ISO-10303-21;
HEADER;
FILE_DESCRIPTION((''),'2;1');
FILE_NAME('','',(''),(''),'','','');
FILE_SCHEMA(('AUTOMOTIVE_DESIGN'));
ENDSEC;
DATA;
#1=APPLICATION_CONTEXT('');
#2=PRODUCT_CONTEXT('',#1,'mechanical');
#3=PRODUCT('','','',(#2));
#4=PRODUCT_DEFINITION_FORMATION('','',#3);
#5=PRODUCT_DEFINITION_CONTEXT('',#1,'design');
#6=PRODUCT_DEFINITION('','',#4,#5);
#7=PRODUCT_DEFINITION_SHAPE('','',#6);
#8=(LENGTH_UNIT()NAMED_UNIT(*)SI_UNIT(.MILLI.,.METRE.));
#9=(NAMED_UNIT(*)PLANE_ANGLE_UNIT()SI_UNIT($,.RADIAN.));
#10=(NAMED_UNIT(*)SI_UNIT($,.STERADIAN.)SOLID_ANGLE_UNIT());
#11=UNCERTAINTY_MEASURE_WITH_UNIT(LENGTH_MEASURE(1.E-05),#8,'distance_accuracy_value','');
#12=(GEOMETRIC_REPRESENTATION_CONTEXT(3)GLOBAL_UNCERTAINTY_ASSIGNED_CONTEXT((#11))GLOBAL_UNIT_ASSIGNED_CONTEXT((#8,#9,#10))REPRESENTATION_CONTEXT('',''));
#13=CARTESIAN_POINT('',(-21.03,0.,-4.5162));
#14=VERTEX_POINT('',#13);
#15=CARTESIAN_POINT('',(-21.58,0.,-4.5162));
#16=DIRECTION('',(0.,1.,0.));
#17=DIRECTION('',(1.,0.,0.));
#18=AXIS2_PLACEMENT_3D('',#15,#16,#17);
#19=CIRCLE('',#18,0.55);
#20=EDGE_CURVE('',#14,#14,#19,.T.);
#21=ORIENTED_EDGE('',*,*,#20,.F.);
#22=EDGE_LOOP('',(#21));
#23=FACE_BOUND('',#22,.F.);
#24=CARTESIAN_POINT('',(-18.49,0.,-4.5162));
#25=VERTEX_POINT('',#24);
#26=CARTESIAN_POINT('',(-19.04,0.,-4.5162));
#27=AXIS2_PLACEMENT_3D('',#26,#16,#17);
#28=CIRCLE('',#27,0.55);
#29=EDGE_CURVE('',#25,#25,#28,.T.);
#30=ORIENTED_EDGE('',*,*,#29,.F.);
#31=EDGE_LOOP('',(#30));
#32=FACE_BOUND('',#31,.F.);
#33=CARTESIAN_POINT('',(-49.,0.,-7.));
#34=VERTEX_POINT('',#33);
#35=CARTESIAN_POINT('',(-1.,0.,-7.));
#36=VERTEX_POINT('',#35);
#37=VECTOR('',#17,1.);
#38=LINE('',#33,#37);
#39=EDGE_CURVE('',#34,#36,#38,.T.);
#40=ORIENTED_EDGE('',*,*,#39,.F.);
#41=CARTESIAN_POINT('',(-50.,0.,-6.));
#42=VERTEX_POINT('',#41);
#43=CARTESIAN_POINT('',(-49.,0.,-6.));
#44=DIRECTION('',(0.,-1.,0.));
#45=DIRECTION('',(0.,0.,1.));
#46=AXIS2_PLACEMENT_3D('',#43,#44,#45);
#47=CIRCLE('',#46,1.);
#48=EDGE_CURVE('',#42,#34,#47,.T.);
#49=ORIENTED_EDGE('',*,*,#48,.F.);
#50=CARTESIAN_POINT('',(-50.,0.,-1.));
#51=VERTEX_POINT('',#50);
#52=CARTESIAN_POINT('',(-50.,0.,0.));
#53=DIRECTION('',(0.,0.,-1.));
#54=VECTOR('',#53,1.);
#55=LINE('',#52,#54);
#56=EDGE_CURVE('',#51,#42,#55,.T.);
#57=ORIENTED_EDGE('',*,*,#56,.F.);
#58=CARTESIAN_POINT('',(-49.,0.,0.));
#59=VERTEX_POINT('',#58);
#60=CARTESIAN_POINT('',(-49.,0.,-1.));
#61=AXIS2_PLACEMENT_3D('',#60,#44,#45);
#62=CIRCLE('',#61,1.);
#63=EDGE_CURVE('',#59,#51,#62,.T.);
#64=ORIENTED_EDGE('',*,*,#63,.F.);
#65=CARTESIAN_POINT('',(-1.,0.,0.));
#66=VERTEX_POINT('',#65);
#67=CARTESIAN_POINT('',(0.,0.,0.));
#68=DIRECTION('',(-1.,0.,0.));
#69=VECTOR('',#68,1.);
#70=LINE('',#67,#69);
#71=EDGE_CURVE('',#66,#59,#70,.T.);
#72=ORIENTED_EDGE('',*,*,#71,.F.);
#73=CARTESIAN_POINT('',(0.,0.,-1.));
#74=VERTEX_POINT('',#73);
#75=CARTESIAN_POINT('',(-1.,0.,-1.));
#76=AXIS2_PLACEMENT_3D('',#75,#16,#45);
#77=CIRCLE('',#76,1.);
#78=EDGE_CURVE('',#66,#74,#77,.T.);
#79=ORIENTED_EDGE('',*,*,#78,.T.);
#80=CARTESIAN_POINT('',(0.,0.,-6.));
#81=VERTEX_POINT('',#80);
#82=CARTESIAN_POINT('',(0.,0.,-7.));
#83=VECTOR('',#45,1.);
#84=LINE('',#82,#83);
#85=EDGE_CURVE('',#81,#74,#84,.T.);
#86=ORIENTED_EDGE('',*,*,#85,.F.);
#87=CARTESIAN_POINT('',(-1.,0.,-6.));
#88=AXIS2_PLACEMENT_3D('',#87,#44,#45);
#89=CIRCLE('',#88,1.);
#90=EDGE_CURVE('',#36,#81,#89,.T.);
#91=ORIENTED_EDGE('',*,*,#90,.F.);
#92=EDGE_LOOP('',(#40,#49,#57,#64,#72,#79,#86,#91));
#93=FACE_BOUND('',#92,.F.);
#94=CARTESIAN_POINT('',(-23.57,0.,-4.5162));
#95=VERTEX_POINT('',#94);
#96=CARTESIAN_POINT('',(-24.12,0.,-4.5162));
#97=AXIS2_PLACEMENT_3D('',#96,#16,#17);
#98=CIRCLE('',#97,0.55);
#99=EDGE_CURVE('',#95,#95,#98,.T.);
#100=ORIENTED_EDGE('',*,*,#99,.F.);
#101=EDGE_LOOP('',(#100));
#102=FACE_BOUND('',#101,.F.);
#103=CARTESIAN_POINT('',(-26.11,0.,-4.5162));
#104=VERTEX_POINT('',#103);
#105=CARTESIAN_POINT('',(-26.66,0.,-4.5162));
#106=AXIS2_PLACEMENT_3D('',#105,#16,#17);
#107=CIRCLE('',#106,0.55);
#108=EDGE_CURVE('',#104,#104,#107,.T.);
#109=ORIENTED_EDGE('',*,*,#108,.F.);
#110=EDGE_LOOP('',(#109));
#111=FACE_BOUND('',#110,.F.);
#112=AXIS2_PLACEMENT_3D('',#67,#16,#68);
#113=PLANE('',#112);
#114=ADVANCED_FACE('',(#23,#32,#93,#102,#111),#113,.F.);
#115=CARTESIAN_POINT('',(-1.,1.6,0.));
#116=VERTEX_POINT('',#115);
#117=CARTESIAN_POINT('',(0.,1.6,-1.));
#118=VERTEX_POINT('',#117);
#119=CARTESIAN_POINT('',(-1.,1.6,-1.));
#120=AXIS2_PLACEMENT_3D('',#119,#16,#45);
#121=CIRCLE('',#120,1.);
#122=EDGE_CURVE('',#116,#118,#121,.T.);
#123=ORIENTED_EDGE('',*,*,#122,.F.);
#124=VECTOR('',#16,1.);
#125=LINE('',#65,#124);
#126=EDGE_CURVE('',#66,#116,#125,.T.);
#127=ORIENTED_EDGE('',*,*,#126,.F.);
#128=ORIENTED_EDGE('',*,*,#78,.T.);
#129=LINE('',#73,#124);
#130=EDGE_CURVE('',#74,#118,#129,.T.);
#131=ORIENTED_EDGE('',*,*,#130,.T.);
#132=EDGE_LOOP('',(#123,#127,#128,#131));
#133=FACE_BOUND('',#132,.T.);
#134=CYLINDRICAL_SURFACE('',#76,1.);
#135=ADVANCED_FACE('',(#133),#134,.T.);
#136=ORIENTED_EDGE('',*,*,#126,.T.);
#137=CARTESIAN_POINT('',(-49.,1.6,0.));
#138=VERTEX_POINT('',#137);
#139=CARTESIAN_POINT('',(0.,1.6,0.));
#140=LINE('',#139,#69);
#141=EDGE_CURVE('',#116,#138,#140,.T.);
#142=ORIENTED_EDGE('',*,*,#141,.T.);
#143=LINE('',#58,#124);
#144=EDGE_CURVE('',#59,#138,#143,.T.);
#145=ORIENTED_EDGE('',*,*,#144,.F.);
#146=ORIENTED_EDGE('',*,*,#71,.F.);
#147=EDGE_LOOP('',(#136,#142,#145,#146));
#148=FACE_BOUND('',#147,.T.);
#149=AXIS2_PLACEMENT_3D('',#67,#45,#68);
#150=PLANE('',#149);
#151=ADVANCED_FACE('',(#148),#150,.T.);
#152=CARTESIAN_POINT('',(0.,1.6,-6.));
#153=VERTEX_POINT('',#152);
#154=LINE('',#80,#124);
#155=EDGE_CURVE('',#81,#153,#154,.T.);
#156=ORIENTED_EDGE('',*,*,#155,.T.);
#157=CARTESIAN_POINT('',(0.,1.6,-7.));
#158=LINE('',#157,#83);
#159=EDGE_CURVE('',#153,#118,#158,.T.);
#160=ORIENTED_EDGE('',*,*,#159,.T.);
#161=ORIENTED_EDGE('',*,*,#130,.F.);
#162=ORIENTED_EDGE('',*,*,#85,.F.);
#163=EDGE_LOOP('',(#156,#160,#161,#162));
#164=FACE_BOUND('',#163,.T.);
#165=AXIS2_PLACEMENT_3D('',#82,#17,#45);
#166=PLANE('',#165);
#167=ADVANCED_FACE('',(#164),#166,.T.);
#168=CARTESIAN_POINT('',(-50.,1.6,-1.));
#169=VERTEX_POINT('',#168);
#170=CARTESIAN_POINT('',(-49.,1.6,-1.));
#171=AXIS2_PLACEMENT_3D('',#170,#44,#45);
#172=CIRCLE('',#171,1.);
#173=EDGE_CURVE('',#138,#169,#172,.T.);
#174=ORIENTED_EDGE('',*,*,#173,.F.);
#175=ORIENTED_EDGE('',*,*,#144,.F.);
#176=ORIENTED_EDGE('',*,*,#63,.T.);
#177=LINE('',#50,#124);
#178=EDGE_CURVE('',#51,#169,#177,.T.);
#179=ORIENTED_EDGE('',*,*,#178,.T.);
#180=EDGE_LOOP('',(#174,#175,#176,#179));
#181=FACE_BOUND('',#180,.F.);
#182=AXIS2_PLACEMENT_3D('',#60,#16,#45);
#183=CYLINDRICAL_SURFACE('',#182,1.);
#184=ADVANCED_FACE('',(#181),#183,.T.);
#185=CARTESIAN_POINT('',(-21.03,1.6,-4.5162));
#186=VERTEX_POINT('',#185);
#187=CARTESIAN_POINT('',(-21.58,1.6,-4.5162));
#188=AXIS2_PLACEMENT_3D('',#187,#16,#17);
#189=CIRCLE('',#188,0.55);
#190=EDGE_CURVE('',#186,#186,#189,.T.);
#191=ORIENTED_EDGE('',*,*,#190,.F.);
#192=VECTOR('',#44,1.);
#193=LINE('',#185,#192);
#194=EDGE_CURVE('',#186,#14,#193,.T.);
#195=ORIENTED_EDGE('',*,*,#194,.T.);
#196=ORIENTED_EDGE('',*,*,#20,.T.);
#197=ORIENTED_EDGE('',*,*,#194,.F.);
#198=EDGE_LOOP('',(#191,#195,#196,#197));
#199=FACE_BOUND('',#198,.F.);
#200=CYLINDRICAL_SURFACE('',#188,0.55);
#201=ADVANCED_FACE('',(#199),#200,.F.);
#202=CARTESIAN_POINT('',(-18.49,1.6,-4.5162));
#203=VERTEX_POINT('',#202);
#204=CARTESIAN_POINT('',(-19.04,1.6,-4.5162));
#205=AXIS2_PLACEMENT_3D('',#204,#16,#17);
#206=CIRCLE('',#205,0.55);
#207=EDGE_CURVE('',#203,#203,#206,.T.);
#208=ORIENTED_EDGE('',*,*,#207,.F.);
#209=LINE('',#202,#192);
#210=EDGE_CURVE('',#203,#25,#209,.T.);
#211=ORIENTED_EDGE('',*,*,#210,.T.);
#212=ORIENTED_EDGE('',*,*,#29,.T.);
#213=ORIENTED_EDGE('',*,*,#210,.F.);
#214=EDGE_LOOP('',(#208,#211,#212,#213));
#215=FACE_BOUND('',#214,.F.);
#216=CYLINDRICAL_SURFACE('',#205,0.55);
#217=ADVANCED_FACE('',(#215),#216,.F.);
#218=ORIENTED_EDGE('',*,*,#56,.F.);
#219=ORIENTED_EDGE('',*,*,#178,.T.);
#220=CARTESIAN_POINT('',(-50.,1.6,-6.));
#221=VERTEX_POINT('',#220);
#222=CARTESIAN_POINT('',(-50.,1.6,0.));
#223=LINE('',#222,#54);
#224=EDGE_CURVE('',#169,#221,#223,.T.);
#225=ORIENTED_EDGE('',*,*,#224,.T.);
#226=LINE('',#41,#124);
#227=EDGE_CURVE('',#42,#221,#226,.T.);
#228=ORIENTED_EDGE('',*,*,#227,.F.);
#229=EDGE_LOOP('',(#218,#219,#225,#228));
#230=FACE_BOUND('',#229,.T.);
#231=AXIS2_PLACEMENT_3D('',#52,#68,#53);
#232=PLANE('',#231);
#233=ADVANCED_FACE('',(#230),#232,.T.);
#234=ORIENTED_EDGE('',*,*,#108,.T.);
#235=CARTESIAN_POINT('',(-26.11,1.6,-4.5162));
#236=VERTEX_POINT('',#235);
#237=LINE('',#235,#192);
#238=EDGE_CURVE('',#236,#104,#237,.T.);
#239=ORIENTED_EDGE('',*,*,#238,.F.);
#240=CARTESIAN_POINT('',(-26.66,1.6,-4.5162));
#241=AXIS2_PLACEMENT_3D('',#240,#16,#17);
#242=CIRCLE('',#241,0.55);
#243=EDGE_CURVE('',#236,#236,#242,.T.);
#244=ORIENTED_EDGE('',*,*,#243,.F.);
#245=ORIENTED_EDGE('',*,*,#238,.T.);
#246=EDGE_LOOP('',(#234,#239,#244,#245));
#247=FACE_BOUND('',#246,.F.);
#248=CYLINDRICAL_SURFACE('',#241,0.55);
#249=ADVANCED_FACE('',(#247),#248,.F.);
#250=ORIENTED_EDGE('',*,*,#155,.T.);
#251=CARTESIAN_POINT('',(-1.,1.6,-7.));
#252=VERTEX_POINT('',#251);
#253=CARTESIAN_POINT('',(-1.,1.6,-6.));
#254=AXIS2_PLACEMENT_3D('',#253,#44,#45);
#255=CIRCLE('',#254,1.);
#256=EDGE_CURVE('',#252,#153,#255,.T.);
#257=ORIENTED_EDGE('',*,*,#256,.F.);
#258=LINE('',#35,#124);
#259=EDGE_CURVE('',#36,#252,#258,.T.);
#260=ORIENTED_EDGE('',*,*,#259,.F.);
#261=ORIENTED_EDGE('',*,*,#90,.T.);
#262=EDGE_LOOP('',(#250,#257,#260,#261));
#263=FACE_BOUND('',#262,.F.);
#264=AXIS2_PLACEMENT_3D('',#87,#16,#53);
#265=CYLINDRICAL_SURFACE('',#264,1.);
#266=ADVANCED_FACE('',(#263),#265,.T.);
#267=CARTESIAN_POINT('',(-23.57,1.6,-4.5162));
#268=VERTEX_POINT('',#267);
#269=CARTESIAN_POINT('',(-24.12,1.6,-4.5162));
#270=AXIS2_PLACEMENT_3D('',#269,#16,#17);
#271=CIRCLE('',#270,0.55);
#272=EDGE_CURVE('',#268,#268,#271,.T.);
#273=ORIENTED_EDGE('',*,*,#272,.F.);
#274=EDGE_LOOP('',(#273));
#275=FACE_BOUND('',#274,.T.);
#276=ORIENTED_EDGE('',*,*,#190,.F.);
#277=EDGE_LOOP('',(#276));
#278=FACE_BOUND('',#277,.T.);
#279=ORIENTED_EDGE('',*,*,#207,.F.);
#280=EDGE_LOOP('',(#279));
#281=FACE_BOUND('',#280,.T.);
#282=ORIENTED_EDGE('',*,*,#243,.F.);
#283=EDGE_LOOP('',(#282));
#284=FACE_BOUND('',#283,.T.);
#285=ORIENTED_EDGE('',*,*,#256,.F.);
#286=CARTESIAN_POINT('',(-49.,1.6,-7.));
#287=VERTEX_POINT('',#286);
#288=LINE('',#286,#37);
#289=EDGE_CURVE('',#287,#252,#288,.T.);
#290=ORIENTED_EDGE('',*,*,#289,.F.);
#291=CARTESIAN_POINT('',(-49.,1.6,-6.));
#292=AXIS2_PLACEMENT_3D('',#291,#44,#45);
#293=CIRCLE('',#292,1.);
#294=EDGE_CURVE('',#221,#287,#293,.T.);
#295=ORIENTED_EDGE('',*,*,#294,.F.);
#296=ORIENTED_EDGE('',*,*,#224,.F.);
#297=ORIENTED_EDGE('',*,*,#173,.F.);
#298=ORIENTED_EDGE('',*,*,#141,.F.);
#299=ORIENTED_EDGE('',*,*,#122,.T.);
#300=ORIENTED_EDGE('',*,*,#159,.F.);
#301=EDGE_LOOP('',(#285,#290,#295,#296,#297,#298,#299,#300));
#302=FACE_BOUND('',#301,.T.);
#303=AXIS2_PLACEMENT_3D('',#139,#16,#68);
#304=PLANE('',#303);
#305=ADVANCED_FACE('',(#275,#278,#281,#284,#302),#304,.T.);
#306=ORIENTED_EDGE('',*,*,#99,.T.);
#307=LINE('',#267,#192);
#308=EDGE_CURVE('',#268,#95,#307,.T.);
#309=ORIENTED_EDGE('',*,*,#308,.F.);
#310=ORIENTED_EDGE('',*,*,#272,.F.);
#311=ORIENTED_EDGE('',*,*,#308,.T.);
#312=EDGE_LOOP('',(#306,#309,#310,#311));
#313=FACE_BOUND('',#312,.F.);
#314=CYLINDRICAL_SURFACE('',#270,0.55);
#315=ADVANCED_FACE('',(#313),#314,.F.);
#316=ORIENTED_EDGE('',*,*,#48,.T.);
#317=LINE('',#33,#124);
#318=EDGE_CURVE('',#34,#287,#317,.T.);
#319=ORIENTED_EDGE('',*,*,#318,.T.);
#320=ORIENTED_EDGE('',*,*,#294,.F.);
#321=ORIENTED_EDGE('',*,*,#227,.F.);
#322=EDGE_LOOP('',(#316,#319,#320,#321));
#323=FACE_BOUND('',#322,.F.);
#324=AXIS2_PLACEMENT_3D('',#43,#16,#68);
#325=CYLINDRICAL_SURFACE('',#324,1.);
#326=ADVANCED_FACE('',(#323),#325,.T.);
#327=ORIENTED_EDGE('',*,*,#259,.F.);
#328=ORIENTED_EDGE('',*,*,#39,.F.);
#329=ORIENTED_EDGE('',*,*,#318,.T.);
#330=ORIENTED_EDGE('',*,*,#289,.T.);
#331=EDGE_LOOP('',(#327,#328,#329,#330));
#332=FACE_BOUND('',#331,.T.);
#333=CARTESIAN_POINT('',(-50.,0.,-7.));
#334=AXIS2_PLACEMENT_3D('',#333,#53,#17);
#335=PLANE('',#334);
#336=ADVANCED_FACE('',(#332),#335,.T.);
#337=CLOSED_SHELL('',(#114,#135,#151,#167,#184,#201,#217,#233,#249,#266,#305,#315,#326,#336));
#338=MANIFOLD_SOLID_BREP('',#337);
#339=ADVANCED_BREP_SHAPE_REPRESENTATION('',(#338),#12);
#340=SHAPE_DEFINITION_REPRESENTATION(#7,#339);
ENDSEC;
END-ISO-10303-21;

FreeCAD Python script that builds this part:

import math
import FreeCAD as App
import Part
import Sketcher
from FreeCAD import Vector


def edges_at(feature, points):
    """Names of the edges that pass closest to the given points."""
    edges = feature.Shape.Edges
    near = lambda p: min(range(len(edges)), key=lambda i: edges[i].distToShape(Part.Vertex(*p))[0])
    return sorted({f"Edge{near(p) + 1}" for p in points})

doc = App.newDocument("Part")
body = doc.addObject("PartDesign::Body", "Body")

sketch1 = body.newObject("Sketcher::SketchObject", "Sketch")
sketch1.AttachmentSupport = (doc.getObject("XZ_Plane"), [""])
sketch1.MapMode = "FlatFace"
sketch1.addGeometry(Part.LineSegment(Vector(-50, 0, 0), Vector(0, 0, 0)), False)
sketch1.addGeometry(Part.LineSegment(Vector(0, 0, 0), Vector(0, -7, 0)), False)
sketch1.addGeometry(Part.LineSegment(Vector(0, -7, 0), Vector(-50, -7, 0)), False)
sketch1.addGeometry(Part.LineSegment(Vector(-50, -7, 0), Vector(-50, 0, 0)), False)
sketch1.addConstraint(Sketcher.Constraint("Coincident", 0, 2, 1, 1))
sketch1.addConstraint(Sketcher.Constraint("Coincident", 1, 2, 2, 1))
sketch1.addConstraint(Sketcher.Constraint("Coincident", 2, 2, 3, 1))
sketch1.addConstraint(Sketcher.Constraint("Coincident", 3, 2, 0, 1))
sketch1.addConstraint(Sketcher.Constraint("Horizontal", 0))
sketch1.addConstraint(Sketcher.Constraint("Vertical", 1))
sketch1.addConstraint(Sketcher.Constraint("Horizontal", 2))
sketch1.addConstraint(Sketcher.Constraint("Vertical", 3))
sketch1.addConstraint(Sketcher.Constraint("Coincident", 0, 2, -1, 1))
sketch1.addConstraint(Sketcher.Constraint("DistanceX", 0, 1, 0, 2, 50.0))
sketch1.addConstraint(Sketcher.Constraint("DistanceY", 1, 2, 1, 1, 7.0))
pad1 = body.newObject("PartDesign::Pad", "Pad")
pad1.Profile = sketch1
pad1.Length = 1.6
pad1.Reversed = True
doc.recompute()

fillet = body.newObject("PartDesign::Fillet", "Fillet")
fillet.Base = (pad1, edges_at(pad1, [
    (0, 0.8, 0),
    (0, 0.8, -7),
    (-50, 0.8, 0),
    (-50, 0.8, -7),
]))
fillet.Radius = 1

sketch2 = body.newObject("Sketcher::SketchObject", "Sketch001")
sketch2.AttachmentSupport = (doc.getObject("XZ_Plane"), [""])
sketch2.MapMode = "FlatFace"
sketch2.addGeometry(Part.LineSegment(Vector(-21, -7, 0), Vector(-29, -7, 0)), False)
sketch2.addGeometry(Part.LineSegment(Vector(-29, -7, 0), Vector(-29, -20, 0)), False)
sketch2.addGeometry(Part.LineSegment(Vector(-29, -20, 0), Vector(-21, -20, 0)), False)
sketch2.addGeometry(Part.LineSegment(Vector(-21, -20, 0), Vector(-21, -7, 0)), False)
sketch2.addConstraint(Sketcher.Constraint("Coincident", 0, 2, 1, 1))
sketch2.addConstraint(Sketcher.Constraint("Coincident", 1, 2, 2, 1))
sketch2.addConstraint(Sketcher.Constraint("Coincident", 2, 2, 3, 1))
sketch2.addConstraint(Sketcher.Constraint("Coincident", 3, 2, 0, 1))
sketch2.addConstraint(Sketcher.Constraint("Horizontal", 0))
sketch2.addConstraint(Sketcher.Constraint("Vertical", 1))
sketch2.addConstraint(Sketcher.Constraint("Horizontal", 2))
sketch2.addConstraint(Sketcher.Constraint("Vertical", 3))
sketch2.addConstraint(Sketcher.Constraint("DistanceX", 0, 2, 0, 1, 8.0))
sketch2.addConstraint(Sketcher.Constraint("DistanceY", 1, 2, 1, 1, 13.0))
sketch2.addConstraint(Sketcher.Constraint("DistanceX", 0, 2, -1, 1, 29.0))
sketch2.addConstraint(Sketcher.Constraint("DistanceY", 0, 2, -1, 1, 7.0))
pad2 = body.newObject("PartDesign::Pad", "Pad001")
pad2.Profile = sketch2
pad2.Length = 1.6
pad2.Reversed = True

sketch3 = body.newObject("Sketcher::SketchObject", "Sketch002")
sketch3.AttachmentSupport = (doc.getObject("XZ_Plane"), [""])
sketch3.MapMode = "FlatFace"
sketch3.AttachmentOffset = App.Placement(Vector(0, 0, -1.6), App.Rotation())
sketch3.addGeometry(Part.Circle(Vector(-26.66, -4.5162, 0), Vector(0, 0, 1), 0.55), False)
sketch3.addGeometry(Part.Circle(Vector(-24.12, -4.5162, 0), Vector(0, 0, 1), 0.55), False)
sketch3.addGeometry(Part.Circle(Vector(-21.58, -4.5162, 0), Vector(0, 0, 1), 0.55), False)
sketch3.addGeometry(Part.Circle(Vector(-19.04, -4.5162, 0), Vector(0, 0, 1), 0.55), False)
sketch3.addConstraint(Sketcher.Constraint("Equal", 0, 1))
sketch3.addConstraint(Sketcher.Constraint("Equal", 1, 2))
sketch3.addConstraint(Sketcher.Constraint("Equal", 2, 3))
sketch3.addConstraint(Sketcher.Constraint("Horizontal", 0, 3, 1, 3))
sketch3.addConstraint(Sketcher.Constraint("Horizontal", 1, 3, 2, 3))
sketch3.addConstraint(Sketcher.Constraint("Horizontal", 2, 3, 3, 3))
sketch3.addConstraint(Sketcher.Constraint("Diameter", 0, 1.1))
sketch3.addConstraint(Sketcher.Constraint("DistanceX", 0, 3, 1, 3, 2.54))
sketch3.addConstraint(Sketcher.Constraint("DistanceX", 1, 3, 2, 3, 2.54))
sketch3.addConstraint(Sketcher.Constraint("DistanceX", 2, 3, 3, 3, 2.54))
sketch3.addConstraint(Sketcher.Constraint("DistanceX", 0, 3, -1, 1, 26.66))
sketch3.addConstraint(Sketcher.Constraint("DistanceY", 0, 3, -1, 1, 4.5162))
pocket1 = body.newObject("PartDesign::Pocket", "Pocket")
pocket1.Profile = sketch3
pocket1.Type = "ThroughAll"
pocket1.Reversed = True
doc.recompute()

fillet2 = body.newObject("PartDesign::Fillet", "Fillet001")
fillet2.Base = (pocket1, edges_at(pocket1, [(-21, 0.8, -20), (-29, 0.8, -20)]))
fillet2.Radius = 0.5

sketch4 = body.newObject("Sketcher::SketchObject", "Sketch003")
sketch4.AttachmentSupport = (doc.getObject("XZ_Plane"), [""])
sketch4.MapMode = "FlatFace"
sketch4.AttachmentOffset = App.Placement(Vector(0, 0, -1.6), App.Rotation())
sketch4.addGeometry(Part.ArcOfCircle(Part.Circle(Vector(-29.5, -7.5, 0), Vector(0, 0, 1), 0.5), math.radians(0), math.radians(90)), False)
sketch4.addGeometry(Part.LineSegment(Vector(-29.5, -7, 0), Vector(-20.5, -7, 0)), False)
sketch4.addGeometry(Part.ArcOfCircle(Part.Circle(Vector(-20.5, -7.5, 0), Vector(0, 0, 1), 0.5), math.radians(90), math.radians(180)), False)
sketch4.addGeometry(Part.LineSegment(Vector(-21, -7.5, 0), Vector(-21, -19.5, 0)), False)
sketch4.addGeometry(Part.ArcOfCircle(Part.Circle(Vector(-21.5, -19.5, 0), Vector(0, 0, 1), 0.5), math.radians(-90), math.radians(0)), False)
sketch4.addGeometry(Part.LineSegment(Vector(-21.5, -20, 0), Vector(-28.5, -20, 0)), False)
sketch4.addGeometry(Part.ArcOfCircle(Part.Circle(Vector(-28.5, -19.5, 0), Vector(0, 0, 1), 0.5), math.radians(180), math.radians(270)), False)
sketch4.addGeometry(Part.LineSegment(Vector(-29, -19.5, 0), Vector(-29, -7.5, 0)), False)
sketch4.addConstraint(Sketcher.Constraint("Tangent", 0, 2, 1, 1))
sketch4.addConstraint(Sketcher.Constraint("Tangent", 1, 2, 2, 1))
sketch4.addConstraint(Sketcher.Constraint("Tangent", 2, 2, 3, 1))
sketch4.addConstraint(Sketcher.Constraint("Tangent", 3, 2, 4, 2))
sketch4.addConstraint(Sketcher.Constraint("Tangent", 4, 1, 5, 1))
sketch4.addConstraint(Sketcher.Constraint("Tangent", 5, 2, 6, 2))
sketch4.addConstraint(Sketcher.Constraint("Tangent", 6, 1, 7, 1))
sketch4.addConstraint(Sketcher.Constraint("Tangent", 7, 2, 0, 1))
sketch4.addConstraint(Sketcher.Constraint("Horizontal", 1))
sketch4.addConstraint(Sketcher.Constraint("Vertical", 3))
sketch4.addConstraint(Sketcher.Constraint("Horizontal", 5))
sketch4.addConstraint(Sketcher.Constraint("Vertical", 7))
sketch4.addConstraint(Sketcher.Constraint("Equal", 0, 2))
sketch4.addConstraint(Sketcher.Constraint("Equal", 2, 4))
sketch4.addConstraint(Sketcher.Constraint("Equal", 4, 6))
sketch4.addConstraint(Sketcher.Constraint("Radius", 0, 0.5))
sketch4.addConstraint(Sketcher.Constraint("DistanceX", 1, 1, 1, 2, 9.0))
sketch4.addConstraint(Sketcher.Constraint("DistanceY", 3, 2, 3, 1, 12.0))
sketch4.addConstraint(Sketcher.Constraint("DistanceY", 0, 2, -1, 1, 7.0))
sketch4.addConstraint(Sketcher.Constraint("DistanceX", 2, 2, -1, 1, 21.0))
pocket2 = body.newObject("PartDesign::Pocket", "Pocket001")
pocket2.Profile = sketch4
pocket2.Type = "ThroughAll"
pocket2.Reversed = True

doc.recompute()
